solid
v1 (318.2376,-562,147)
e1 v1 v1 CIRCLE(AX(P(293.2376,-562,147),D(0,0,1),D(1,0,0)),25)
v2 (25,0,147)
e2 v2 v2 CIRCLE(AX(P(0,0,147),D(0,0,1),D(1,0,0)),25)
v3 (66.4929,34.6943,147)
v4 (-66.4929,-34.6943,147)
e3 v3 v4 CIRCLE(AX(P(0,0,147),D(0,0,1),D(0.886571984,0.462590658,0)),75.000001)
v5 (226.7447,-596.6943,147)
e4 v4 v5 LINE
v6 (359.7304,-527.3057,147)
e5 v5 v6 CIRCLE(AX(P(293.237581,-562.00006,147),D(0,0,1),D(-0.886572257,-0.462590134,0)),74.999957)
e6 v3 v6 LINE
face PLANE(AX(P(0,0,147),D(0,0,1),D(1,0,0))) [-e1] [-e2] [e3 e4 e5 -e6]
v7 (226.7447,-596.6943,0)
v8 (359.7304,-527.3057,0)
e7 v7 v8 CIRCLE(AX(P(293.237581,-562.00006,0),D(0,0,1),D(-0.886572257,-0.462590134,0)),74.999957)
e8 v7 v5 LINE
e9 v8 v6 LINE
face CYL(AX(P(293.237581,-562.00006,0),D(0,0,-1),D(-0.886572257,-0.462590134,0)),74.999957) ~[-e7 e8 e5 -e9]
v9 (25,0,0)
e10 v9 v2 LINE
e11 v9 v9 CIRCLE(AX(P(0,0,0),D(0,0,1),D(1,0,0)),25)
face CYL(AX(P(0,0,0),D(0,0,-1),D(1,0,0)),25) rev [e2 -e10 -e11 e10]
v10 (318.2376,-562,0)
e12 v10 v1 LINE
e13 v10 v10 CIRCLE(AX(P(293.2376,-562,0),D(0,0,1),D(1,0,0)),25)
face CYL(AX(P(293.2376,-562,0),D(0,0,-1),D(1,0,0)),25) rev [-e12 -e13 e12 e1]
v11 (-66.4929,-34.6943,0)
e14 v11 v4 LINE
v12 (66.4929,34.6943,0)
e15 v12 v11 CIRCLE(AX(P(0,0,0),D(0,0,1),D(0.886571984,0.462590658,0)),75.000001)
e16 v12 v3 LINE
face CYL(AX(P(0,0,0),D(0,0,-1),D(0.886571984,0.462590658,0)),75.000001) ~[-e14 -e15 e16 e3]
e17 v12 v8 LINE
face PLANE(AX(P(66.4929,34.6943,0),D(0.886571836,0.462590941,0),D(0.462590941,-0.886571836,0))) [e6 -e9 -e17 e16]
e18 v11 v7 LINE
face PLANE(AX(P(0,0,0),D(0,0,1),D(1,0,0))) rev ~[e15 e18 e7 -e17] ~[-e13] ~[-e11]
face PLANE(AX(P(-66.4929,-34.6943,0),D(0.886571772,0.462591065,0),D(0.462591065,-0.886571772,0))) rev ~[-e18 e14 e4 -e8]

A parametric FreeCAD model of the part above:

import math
import FreeCAD as App
import Part
import Sketcher

doc = App.newDocument("Part")
params = doc.addObject("Spreadsheet::Sheet", "Params")
for row, (alias, value) in enumerate([
    ("sketch1_diameter", "50 mm"),
    ("sketch1_diameter2", "50 mm"),
    ("sketch1_radius", "75 mm"),
    ("sketch1_radius2", "75 mm"),
    ("pad1_length", "147 mm"),
], start=1):
    params.set(f"A{row}", alias)
    params.set(f"B{row}", "=" + value)
    params.setAlias(f"B{row}", alias)

body = doc.addObject("PartDesign::Body", "Body")

sketch1 = body.newObject("Sketcher::SketchObject", "Sketch")
sketch1.AttachmentSupport = (doc.getObject("XY_Plane"), [""])
sketch1.MapMode = "FlatFace"
sketch1.addGeometry([
    Part.LineSegment(App.Vector(359.7304, -527.3057, 0), App.Vector(66.4929, 34.6943, 0)),
    Part.ArcOfCircle(Part.Circle(App.Vector(0, 0, 0), App.Vector(0, 0, 1), 75.000001), math.radians(27.554405), math.radians(207.554405)),
    Part.LineSegment(App.Vector(-66.4929, -34.6943, 0), App.Vector(226.7447, -596.6943, 0)),
    Part.ArcOfCircle(Part.Circle(App.Vector(293.2376, -562, 0), App.Vector(0, 0, 1), 75.000001), math.radians(-152.445595), math.radians(27.55444)),
    Part.Circle(App.Vector(293.2376, -562, 0), App.Vector(0, 0, 1), 25),
    Part.Circle(App.Vector(0, 0, 0), App.Vector(0, 0, 1), 25),
], False)
sketch1.addConstraint([
    Sketcher.Constraint("Coincident", 0, 2, 1, 1),
    Sketcher.Constraint("Coincident", 1, 2, 2, 1),
    Sketcher.Constraint("Coincident", 2, 2, 3, 1),
    Sketcher.Constraint("Coincident", 3, 2, 0, 1),
    Sketcher.Constraint("Coincident", 1, 3, -1, 1),
    Sketcher.Constraint("Coincident", 5, 3, -1, 1),
    Sketcher.Constraint("Coincident", 4, 3, 3, 3),
    Sketcher.Constraint("Diameter", 4, 50.0),
    Sketcher.Constraint("Diameter", 5, 50.0),
    Sketcher.Constraint("Radius", 1, 75.0),
    Sketcher.Constraint("Radius", 3, 75.0),
    Sketcher.Constraint("DistanceY", 3, 3, -1, 1, 562.0),
    Sketcher.Constraint("DistanceY", 2, 2, 1, 2, 562.0),
    Sketcher.Constraint("DistanceY", 3, 2, 0, 2, 562.0),
    Sketcher.Constraint("DistanceX", -1, 1, 0, 2, 66.493),
    Sketcher.Constraint("DistanceX", 1, 2, -1, 1, 66.493),
    Sketcher.Constraint("Distance", 0, 633.9024),
])
sketch1.setExpression("Constraints[7]", "Params.sketch1_diameter")
sketch1.setExpression("Constraints[8]", "Params.sketch1_diameter2")
sketch1.setExpression("Constraints[9]", "Params.sketch1_radius")
sketch1.setExpression("Constraints[10]", "Params.sketch1_radius2")
pad1 = body.newObject("PartDesign::Pad", "Pad")
pad1.Profile = sketch1
pad1.setExpression("Length", "Params.pad1_length")

doc.recompute()
